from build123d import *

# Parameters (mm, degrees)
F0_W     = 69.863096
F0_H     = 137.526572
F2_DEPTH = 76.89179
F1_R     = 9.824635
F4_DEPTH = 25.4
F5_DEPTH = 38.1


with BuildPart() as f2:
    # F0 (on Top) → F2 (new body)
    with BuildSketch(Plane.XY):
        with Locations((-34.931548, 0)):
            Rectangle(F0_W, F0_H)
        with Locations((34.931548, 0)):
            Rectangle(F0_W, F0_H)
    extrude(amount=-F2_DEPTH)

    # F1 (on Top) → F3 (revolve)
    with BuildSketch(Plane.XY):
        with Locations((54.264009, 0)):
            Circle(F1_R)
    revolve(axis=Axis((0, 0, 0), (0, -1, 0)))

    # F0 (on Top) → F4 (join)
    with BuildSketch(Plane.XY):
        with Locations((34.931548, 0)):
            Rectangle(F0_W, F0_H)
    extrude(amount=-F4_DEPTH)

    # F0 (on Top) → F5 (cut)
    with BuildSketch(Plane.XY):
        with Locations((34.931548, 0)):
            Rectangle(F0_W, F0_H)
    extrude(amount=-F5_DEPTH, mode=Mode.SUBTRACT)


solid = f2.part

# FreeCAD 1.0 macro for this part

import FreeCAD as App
import Part
import Sketcher
Q = App.Units.Quantity

doc = App.newDocument("Part")
body = doc.addObject("PartDesign::Body", "Body")

sketch1 = body.newObject("Sketcher::SketchObject", "Sketch")
sketch1.AttachmentSupport = (doc.getObject("XY_Plane"), [""])
sketch1.MapMode = "FlatFace"
sketch1.addGeometry(Part.LineSegment(App.Vector(-69.863096, 68.763286, 0), App.Vector(-69.863096, -68.763286, 0)), False)
sketch1.addGeometry(Part.LineSegment(App.Vector(-69.863096, -68.763286, 0), App.Vector(69.863096, -68.763286, 0)), False)
sketch1.addGeometry(Part.LineSegment(App.Vector(69.863096, -68.763286, 0), App.Vector(69.863096, 68.763286, 0)), False)
sketch1.addGeometry(Part.LineSegment(App.Vector(69.863096, 68.763286, 0), App.Vector(-69.863096, 68.763286, 0)), False)
sketch1.addConstraint(Sketcher.Constraint("Coincident", 0, 2, 1, 1))
sketch1.addConstraint(Sketcher.Constraint("Coincident", 1, 2, 2, 1))
sketch1.addConstraint(Sketcher.Constraint("Coincident", 2, 2, 3, 1))
sketch1.addConstraint(Sketcher.Constraint("Coincident", 3, 2, 0, 1))
sketch1.addConstraint(Sketcher.Constraint("Vertical", 0))
sketch1.addConstraint(Sketcher.Constraint("Horizontal", 1))
sketch1.addConstraint(Sketcher.Constraint("Vertical", 2))
sketch1.addConstraint(Sketcher.Constraint("Horizontal", 3))
sketch1.addConstraint(Sketcher.Constraint("Symmetric", 0, 2, 2, 2, -1, 1))
sketch1.addConstraint(Sketcher.Constraint("DistanceX", 1, 1, 1, 2, 139.726192))
sketch1.addConstraint(Sketcher.Constraint("DistanceY", 0, 2, 0, 1, 137.526572))
pad1 = body.newObject("PartDesign::Pad", "Pad")
pad1.Profile = sketch1
pad1.Length = 76.89179
pad1.Reversed = True

sketch2 = body.newObject("Sketcher::SketchObject", "Sketch001")
sketch2.AttachmentSupport = (doc.getObject("XY_Plane"), [""])
sketch2.MapMode = "FlatFace"
sketch2.addGeometry(Part.Circle(App.Vector(54.264009, 0, 0), App.Vector(0, 0, 1), 9.824635), False)
sketch2.addConstraint(Sketcher.Constraint("PointOnObject", 0, 3, -1))
sketch2.addConstraint(Sketcher.Constraint("Diameter", 0, 19.64927))
sketch2.addConstraint(Sketcher.Constraint("DistanceX", -1, 1, 0, 3, 54.264009))
revolution = body.newObject("PartDesign::Revolution", "Revolution")
revolution.Profile = sketch2
revolution.ReferenceAxis = (sketch2, ["V_Axis"])
revolution.Angle = 360

sketch3 = body.newObject("Sketcher::SketchObject", "Sketch002")
sketch3.AttachmentSupport = (doc.getObject("XY_Plane"), [""])
sketch3.MapMode = "FlatFace"
sketch3.addGeometry(Part.LineSegment(App.Vector(0, 68.763286, 0), App.Vector(0, -68.763286, 0)), False)
sketch3.addGeometry(Part.LineSegment(App.Vector(0, -68.763286, 0), App.Vector(69.863096, -68.763286, 0)), False)
sketch3.addGeometry(Part.LineSegment(App.Vector(69.863096, -68.763286, 0), App.Vector(69.863096, 68.763286, 0)), False)
sketch3.addGeometry(Part.LineSegment(App.Vector(69.863096, 68.763286, 0), App.Vector(0, 68.763286, 0)), False)
sketch3.addConstraint(Sketcher.Constraint("Coincident", 0, 2, 1, 1))
sketch3.addConstraint(Sketcher.Constraint("Coincident", 1, 2, 2, 1))
sketch3.addConstraint(Sketcher.Constraint("Coincident", 2, 2, 3, 1))
sketch3.addConstraint(Sketcher.Constraint("Coincident", 3, 2, 0, 1))
sketch3.addConstraint(Sketcher.Constraint("Vertical", 0))
sketch3.addConstraint(Sketcher.Constraint("Horizontal", 1))
sketch3.addConstraint(Sketcher.Constraint("Vertical", 2))
sketch3.addConstraint(Sketcher.Constraint("Horizontal", 3))
sketch3.addConstraint(Sketcher.Constraint("Symmetric", 0, 2, 3, 2, -1, 1))
sketch3.addConstraint(Sketcher.Constraint("DistanceY", 0, 2, 0, 1, 137.526572))
sketch3.addConstraint(Sketcher.Constraint("DistanceX", 1, 1, 1, 2, 69.863096))
pad2 = body.newObject("PartDesign::Pad", "Pad001")
pad2.Profile = sketch3
pad2.Length = Q("1 in")
pad2.Reversed = True

sketch4 = body.newObject("Sketcher::SketchObject", "Sketch003")
sketch4.AttachmentSupport = (doc.getObject("XY_Plane"), [""])
sketch4.MapMode = "FlatFace"
sketch4.addGeometry(Part.LineSegment(App.Vector(0, 68.763286, 0), App.Vector(0, -68.763286, 0)), False)
sketch4.addGeometry(Part.LineSegment(App.Vector(0, -68.763286, 0), App.Vector(69.863096, -68.763286, 0)), False)
sketch4.addGeometry(Part.LineSegment(App.Vector(69.863096, -68.763286, 0), App.Vector(69.863096, 68.763286, 0)), False)
sketch4.addGeometry(Part.LineSegment(App.Vector(69.863096, 68.763286, 0), App.Vector(0, 68.763286, 0)), False)
sketch4.addConstraint(Sketcher.Constraint("Coincident", 0, 2, 1, 1))
sketch4.addConstraint(Sketcher.Constraint("Coincident", 1, 2, 2, 1))
sketch4.addConstraint(Sketcher.Constraint("Coincident", 2, 2, 3, 1))
sketch4.addConstraint(Sketcher.Constraint("Coincident", 3, 2, 0, 1))
sketch4.addConstraint(Sketcher.Constraint("Vertical", 0))
sketch4.addConstraint(Sketcher.Constraint("Horizontal", 1))
sketch4.addConstraint(Sketcher.Constraint("Vertical", 2))
sketch4.addConstraint(Sketcher.Constraint("Horizontal", 3))
sketch4.addConstraint(Sketcher.Constraint("Symmetric", 0, 2, 3, 2, -1, 1))
sketch4.addConstraint(Sketcher.Constraint("DistanceY", 0, 2, 0, 1, 137.526572))
sketch4.addConstraint(Sketcher.Constraint("DistanceX", 1, 1, 1, 2, 69.863096))
pocket1 = body.newObject("PartDesign::Pocket", "Pocket")
pocket1.Profile = sketch4
pocket1.Length = Q("1.5 in")

doc.recompute()
